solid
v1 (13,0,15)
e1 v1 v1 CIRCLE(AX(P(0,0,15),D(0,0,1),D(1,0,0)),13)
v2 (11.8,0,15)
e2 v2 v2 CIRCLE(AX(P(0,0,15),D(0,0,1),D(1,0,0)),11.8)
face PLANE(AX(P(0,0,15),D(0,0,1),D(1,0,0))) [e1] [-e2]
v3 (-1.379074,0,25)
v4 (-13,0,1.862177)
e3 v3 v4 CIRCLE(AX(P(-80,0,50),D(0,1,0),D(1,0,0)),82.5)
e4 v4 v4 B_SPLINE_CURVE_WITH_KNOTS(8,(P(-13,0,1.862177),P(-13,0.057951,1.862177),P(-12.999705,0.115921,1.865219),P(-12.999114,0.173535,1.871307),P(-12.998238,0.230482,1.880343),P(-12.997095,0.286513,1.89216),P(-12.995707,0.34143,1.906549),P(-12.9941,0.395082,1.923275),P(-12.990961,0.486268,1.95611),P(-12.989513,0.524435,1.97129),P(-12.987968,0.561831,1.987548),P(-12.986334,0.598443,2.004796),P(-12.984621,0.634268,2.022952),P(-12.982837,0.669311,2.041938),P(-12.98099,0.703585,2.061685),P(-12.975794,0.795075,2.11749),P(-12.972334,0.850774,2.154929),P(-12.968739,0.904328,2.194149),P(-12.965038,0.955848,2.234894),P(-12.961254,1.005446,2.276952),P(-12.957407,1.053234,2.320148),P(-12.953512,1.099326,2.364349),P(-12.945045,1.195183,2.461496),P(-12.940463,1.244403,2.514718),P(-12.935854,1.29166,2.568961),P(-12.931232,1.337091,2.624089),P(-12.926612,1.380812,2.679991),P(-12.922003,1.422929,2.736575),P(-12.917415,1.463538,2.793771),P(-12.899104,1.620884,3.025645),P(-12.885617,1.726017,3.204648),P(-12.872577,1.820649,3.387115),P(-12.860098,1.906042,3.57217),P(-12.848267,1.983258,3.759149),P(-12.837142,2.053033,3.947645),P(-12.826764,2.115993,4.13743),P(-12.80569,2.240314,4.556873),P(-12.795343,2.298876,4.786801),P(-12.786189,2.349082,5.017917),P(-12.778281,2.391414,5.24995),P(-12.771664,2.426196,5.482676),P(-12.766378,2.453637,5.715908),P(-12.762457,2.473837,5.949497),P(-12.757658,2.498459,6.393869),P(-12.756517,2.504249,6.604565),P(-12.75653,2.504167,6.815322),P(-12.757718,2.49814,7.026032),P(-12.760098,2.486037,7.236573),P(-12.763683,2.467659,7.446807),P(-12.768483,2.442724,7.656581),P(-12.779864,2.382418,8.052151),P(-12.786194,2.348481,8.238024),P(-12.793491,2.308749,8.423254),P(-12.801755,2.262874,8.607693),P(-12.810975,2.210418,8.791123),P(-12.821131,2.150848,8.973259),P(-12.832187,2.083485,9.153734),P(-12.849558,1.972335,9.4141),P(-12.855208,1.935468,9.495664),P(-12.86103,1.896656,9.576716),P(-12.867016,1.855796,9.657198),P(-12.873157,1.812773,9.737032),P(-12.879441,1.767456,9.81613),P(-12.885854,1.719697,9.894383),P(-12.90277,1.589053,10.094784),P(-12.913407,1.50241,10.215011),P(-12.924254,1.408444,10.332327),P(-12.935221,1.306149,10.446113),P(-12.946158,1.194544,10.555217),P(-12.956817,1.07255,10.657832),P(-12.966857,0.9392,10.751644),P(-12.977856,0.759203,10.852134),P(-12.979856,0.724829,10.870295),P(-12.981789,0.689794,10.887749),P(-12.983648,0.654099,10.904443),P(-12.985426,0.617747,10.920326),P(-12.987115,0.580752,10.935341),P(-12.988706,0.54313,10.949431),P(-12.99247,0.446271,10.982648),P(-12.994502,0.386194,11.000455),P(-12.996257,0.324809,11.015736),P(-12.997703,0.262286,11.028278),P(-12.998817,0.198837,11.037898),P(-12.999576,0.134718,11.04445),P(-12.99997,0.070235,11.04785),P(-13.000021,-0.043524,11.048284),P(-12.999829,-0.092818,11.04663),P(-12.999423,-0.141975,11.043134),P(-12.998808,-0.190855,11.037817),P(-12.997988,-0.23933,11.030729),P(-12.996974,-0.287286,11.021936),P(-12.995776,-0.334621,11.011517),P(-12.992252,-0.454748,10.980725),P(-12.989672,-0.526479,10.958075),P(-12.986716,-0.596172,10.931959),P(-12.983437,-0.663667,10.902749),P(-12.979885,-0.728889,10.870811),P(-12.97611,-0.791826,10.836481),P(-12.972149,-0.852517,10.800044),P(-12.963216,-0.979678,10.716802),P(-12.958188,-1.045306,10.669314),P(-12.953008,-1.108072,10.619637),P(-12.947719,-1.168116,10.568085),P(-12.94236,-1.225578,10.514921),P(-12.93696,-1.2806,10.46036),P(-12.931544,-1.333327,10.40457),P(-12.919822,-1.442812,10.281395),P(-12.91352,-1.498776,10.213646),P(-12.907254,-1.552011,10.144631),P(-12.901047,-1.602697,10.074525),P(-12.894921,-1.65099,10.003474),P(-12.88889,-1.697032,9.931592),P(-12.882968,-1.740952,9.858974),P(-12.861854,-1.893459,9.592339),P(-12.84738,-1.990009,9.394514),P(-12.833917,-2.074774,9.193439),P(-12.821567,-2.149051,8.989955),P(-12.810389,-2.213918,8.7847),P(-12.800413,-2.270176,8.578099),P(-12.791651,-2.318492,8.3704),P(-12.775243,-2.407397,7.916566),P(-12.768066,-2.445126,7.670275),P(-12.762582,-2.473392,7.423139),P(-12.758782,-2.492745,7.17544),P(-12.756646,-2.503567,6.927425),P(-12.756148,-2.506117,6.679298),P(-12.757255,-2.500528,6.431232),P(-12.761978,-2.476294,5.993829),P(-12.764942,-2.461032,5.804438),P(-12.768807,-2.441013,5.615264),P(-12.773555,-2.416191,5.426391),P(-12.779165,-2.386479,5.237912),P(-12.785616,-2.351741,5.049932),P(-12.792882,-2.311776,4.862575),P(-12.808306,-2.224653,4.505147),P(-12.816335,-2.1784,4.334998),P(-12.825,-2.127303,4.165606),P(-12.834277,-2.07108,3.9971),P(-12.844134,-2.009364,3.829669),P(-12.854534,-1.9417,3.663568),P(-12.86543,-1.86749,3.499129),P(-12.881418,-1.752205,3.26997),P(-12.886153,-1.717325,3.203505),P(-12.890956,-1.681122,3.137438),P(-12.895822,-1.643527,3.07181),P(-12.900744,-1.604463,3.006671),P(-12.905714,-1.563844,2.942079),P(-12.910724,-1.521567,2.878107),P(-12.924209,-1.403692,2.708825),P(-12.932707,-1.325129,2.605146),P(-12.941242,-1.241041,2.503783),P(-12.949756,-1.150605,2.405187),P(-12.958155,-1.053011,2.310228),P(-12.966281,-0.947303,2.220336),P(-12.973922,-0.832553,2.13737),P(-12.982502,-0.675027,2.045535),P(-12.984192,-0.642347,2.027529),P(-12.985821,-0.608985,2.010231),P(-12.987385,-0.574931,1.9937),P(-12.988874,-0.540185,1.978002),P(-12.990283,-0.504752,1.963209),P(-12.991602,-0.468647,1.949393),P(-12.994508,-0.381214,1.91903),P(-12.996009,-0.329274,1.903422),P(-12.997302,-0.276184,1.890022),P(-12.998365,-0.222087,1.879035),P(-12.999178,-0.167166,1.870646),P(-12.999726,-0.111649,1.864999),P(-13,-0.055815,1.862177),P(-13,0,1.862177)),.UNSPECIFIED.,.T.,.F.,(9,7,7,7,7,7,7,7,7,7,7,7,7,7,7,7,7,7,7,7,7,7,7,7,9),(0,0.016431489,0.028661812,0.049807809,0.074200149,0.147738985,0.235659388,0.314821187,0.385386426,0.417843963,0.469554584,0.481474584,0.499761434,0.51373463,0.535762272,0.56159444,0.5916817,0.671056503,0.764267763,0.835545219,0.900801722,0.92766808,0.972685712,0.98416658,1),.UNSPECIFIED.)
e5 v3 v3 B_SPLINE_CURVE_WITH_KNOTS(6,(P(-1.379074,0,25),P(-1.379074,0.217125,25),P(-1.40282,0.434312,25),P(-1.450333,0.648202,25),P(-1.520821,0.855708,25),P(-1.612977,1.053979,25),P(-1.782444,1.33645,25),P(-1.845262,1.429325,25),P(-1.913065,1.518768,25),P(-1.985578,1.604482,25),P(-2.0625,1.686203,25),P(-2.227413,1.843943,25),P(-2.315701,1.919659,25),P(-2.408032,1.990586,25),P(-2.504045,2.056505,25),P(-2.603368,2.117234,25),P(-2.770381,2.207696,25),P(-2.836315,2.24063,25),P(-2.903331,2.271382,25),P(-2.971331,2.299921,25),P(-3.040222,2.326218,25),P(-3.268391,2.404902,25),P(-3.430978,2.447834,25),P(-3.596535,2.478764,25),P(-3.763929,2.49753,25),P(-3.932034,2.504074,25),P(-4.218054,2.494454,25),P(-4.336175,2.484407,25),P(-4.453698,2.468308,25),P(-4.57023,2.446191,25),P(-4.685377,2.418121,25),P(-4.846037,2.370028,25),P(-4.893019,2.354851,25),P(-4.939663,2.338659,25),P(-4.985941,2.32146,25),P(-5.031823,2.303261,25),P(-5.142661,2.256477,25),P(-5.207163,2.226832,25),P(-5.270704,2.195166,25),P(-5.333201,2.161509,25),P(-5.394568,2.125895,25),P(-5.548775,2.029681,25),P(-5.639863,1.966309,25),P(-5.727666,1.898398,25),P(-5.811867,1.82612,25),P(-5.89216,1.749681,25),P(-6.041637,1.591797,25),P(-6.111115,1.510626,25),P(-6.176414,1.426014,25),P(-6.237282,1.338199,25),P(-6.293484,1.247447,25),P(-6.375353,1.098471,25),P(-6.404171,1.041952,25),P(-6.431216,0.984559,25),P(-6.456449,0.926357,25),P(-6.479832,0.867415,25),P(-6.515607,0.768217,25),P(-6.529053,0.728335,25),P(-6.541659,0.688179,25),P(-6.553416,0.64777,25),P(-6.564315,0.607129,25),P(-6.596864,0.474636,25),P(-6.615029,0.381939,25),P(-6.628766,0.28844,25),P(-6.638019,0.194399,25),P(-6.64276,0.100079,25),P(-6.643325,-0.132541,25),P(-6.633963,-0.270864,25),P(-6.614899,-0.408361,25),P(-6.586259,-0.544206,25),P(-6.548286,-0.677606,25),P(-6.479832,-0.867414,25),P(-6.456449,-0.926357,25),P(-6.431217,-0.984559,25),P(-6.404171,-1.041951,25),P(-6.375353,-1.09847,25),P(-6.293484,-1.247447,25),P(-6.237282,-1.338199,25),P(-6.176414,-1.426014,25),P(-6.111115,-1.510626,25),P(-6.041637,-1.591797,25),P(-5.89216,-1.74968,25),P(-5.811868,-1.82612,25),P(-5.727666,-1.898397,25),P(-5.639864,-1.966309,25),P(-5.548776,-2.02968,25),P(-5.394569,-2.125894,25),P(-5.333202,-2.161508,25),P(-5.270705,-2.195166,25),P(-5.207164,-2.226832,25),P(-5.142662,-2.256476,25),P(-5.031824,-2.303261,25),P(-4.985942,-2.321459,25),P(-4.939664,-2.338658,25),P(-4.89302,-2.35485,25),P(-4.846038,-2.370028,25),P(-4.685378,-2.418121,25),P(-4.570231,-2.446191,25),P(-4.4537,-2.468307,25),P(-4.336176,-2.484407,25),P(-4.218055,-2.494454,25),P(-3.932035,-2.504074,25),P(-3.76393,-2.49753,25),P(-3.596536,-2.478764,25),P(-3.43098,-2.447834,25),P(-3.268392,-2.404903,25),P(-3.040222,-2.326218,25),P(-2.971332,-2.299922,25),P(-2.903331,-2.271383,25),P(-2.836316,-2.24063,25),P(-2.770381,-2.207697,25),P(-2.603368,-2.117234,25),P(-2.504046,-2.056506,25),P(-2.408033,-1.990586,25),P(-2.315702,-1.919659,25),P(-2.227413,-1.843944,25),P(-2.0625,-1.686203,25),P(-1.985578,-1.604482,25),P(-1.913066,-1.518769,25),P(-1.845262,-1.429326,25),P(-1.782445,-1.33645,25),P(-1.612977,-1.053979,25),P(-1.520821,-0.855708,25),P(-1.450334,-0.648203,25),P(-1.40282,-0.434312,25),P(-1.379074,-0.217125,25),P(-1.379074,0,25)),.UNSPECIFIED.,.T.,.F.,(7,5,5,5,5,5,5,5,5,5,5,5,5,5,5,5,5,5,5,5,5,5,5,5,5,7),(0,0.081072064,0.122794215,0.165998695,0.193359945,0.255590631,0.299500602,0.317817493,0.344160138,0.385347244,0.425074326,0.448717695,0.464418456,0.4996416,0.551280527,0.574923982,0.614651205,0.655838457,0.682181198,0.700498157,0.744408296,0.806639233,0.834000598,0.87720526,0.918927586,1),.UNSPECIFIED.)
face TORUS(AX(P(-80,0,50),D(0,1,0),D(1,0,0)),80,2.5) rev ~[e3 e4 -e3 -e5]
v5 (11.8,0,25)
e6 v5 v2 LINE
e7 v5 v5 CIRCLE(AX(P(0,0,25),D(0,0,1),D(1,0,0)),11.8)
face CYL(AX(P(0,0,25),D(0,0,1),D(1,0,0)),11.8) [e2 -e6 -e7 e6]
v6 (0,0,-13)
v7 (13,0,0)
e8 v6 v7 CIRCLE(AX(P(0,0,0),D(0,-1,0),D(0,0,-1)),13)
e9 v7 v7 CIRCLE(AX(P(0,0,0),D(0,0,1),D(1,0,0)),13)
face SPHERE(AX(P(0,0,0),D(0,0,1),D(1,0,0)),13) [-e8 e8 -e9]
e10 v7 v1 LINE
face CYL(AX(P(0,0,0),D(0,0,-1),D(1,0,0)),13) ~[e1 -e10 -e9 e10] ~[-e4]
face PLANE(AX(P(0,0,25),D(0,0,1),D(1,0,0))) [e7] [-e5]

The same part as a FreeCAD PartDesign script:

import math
import FreeCAD as App
import Part
import Sketcher
from FreeCAD import Vector
Q = App.Units.Quantity

doc = App.newDocument("Part")
body = doc.addObject("PartDesign::Body", "Body")

# Sketch on XY plane
sketch1 = doc.addObject("Sketcher::SketchObject", "Sketch")
body.addObject(sketch1)
sketch1.AttachmentSupport = (doc.XY_Plane, [""])
sketch1.MapMode = "FlatFace"
sketch1.addGeometry(Part.Circle(Vector(0, 0, 0), Vector(0, 0, 1), 13), False)
sketch1.addConstraint([
    Sketcher.Constraint("Coincident", 0, 3, -1, 1),
    Sketcher.Constraint("Diameter", 0, Q("26 mm")),
])
pad1 = doc.addObject("PartDesign::Pad", "Pad")
body.addObject(pad1)
pad1.Profile = sketch1
pad1.Length = 25

# Sketch on XZ plane
sketch2 = doc.addObject("Sketcher::SketchObject", "Sketch001")
body.addObject(sketch2)
sketch2.AttachmentSupport = (doc.XZ_Plane, [""])
sketch2.MapMode = "FlatFace"
sketch2.addGeometry([
    Part.LineSegment(Vector(0, 0, 0), Vector(0, -13, 0)),
    Part.ArcOfCircle(Part.Circle(Vector(0, 0, 0), Vector(0, 0, 1), 13), math.radians(-90), math.radians(0)),
    Part.LineSegment(Vector(13, 0, 0), Vector(0, 0, 0)),
], False)
sketch2.addConstraint([
    Sketcher.Constraint("Coincident", 0, 2, 1, 1),
    Sketcher.Constraint("Coincident", 1, 2, 2, 1),
    Sketcher.Constraint("Coincident", 2, 2, 0, 1),
    Sketcher.Constraint("Vertical", 0),
    Sketcher.Constraint("Horizontal", 2),
    Sketcher.Constraint("Coincident", 1, 3, -1, 1),
    Sketcher.Constraint("Coincident", 2, 2, -1, 1),
    Sketcher.Constraint("Radius", 1, Q("13 mm")),
])
revolution = doc.addObject("PartDesign::Revolution", "Revolution")
body.addObject(revolution)
revolution.Profile = sketch2
revolution.ReferenceAxis = (sketch2, ["V_Axis"])
revolution.Angle = 360

# Sketch on XY plane
sketch3 = doc.addObject("Sketcher::SketchObject", "Sketch002")
body.addObject(sketch3)
sketch3.AttachmentSupport = (doc.XY_Plane, [""])
sketch3.MapMode = "FlatFace"
sketch3.AttachmentOffset = App.Placement(Vector(0, 0, 25), App.Rotation())
sketch3.addGeometry([
    Part.Circle(Vector(0, 0, 0), Vector(0, 0, 1), 13),
    Part.Circle(Vector(0, 0, 0), Vector(0, 0, 1), 11.8),
], False)
sketch3.addConstraint([
    Sketcher.Constraint("Coincident", 0, 3, -1, 1),
    Sketcher.Constraint("Coincident", 1, 3, -1, 1),
    Sketcher.Constraint("Diameter", 0, Q("26 mm")),
    Sketcher.Constraint("Diameter", 1, Q("23.6 mm")),
])
pocket1 = doc.addObject("PartDesign::Pocket", "Pocket")
body.addObject(pocket1)
pocket1.Profile = sketch3
pocket1.Length = 10
body2 = doc.addObject("PartDesign::Body", "Body001")

# Sketch on XZ plane
sketch4 = doc.addObject("Sketcher::SketchObject", "Sketch003")
body2.addObject(sketch4)
sketch4.AttachmentSupport = (doc.getObject("XZ_Plane001"), [""])
sketch4.MapMode = "FlatFace"
sketch4.addGeometry(Part.Circle(Vector(-50, 50, 0), Vector(0, 0, 1), 2.5), False)
sketch4.addGeometry(Part.LineSegment(Vector(-130, 50, 0), Vector(-130, 60, 0)), True)  # axis
sketch4.addConstraint([
    Sketcher.Constraint("Vertical", 1),
    Sketcher.Constraint("Horizontal", 0, 3, 1, 1),
    Sketcher.Constraint("Diameter", 0, Q("5 mm")),
    Sketcher.Constraint("DistanceY", 1, 1, 1, 2, Q("10 mm")),
    Sketcher.Constraint("DistanceX", 0, 3, -1, 1, Q("50 mm")),
    Sketcher.Constraint("DistanceY", -1, 1, 0, 3, Q("50 mm")),
    Sketcher.Constraint("DistanceX", 1, 1, -1, 1, Q("130 mm")),
])
revolution2 = doc.addObject("PartDesign::Revolution", "Revolution001")
body2.addObject(revolution2)
revolution2.Profile = sketch4
revolution2.ReferenceAxis = (sketch4, ["Axis0"])
revolution2.Angle = 360
body3 = doc.addObject("PartDesign::Body", "Body002")
doc.recompute()

body2.Placement = App.Placement(Vector(50, 0, 0), App.Rotation(Vector(0, 0, 1), 0))
boolean = doc.addObject("PartDesign::Boolean", "Boolean")
body3.addObject(boolean)
boolean.Type = "Fuse"
boolean.addObjects([body2])
body4 = doc.addObject("PartDesign::Body", "Body003")
doc.recompute()

body3.Placement = App.Placement(Vector(0, -50, 50), App.Rotation(Vector(-1, 0, 0), 90))
boolean2 = doc.addObject("PartDesign::Boolean", "Boolean001")
body4.addObject(boolean2)
boolean2.Type = "Fuse"
boolean2.addObjects([body3])
doc.recompute()

boolean3 = doc.addObject("PartDesign::Boolean", "Boolean002")
body.addObject(boolean3)
boolean3.Type = "Cut"
boolean3.addObjects([body4])

doc.recompute()
